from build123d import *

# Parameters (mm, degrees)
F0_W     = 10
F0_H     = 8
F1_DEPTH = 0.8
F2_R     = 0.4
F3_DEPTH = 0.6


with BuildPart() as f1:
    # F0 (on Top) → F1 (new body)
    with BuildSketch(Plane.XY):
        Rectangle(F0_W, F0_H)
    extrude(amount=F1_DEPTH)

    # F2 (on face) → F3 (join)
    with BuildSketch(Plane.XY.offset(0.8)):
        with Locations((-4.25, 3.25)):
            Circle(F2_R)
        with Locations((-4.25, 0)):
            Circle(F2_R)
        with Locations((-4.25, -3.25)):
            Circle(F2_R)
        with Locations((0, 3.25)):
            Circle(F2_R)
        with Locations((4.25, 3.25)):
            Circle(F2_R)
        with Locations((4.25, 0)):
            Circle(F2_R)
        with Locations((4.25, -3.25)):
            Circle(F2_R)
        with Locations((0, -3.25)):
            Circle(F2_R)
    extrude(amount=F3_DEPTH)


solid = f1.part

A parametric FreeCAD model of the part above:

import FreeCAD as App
import Part
import Sketcher

V = App.Vector


def add_polygon(sketch, points):
    """Adds a closed chain of lines whose ends are joined by coincident constraints."""
    first, n = sketch.GeometryCount, len(points)
    for a, b in zip(points, points[1:] + points[:1]):
        sketch.addGeometry(Part.LineSegment(App.Vector(*a, 0), App.Vector(*b, 0)), False)
    for i in range(n):
        sketch.addConstraint(Sketcher.Constraint("Coincident", first + i, 2, first + (i + 1) % n, 1))

doc = App.newDocument("Part")
body = doc.addObject("PartDesign::Body", "Body")

sketch1 = body.newObject("Sketcher::SketchObject", "Sketch")
sketch1.AttachmentSupport = (doc.getObject("XY_Plane"), [""])
sketch1.MapMode = "FlatFace"
add_polygon(sketch1, [(-5, 4), (-5, -4), (5, -4), (5, 4)])
sketch1.addConstraint([
    Sketcher.Constraint("Vertical", 0),
    Sketcher.Constraint("Horizontal", 1),
    Sketcher.Constraint("Vertical", 2),
    Sketcher.Constraint("Horizontal", 3),
    Sketcher.Constraint("Symmetric", 0, 2, 2, 2, -1, 1),
    Sketcher.Constraint("DistanceX", 1, 1, 1, 2, 10.0),
    Sketcher.Constraint("DistanceY", 0, 2, 0, 1, 8.0),
])
pad1 = body.newObject("PartDesign::Pad", "Pad")
pad1.Profile = sketch1
pad1.Length = 0.8

sketch2 = body.newObject("Sketcher::SketchObject", "Sketch001")
sketch2.AttachmentSupport = (doc.getObject("XY_Plane"), [""])
sketch2.MapMode = "FlatFace"
sketch2.AttachmentOffset = App.Placement(V(0, 0, 0.8), App.Rotation())
sketch2.addGeometry([
    Part.Circle(V(-4.25, 3.25, 0), V(0, 0, 1), 0.4),
    Part.Circle(V(-4.25, 0, 0), V(0, 0, 1), 0.4),
    Part.Circle(V(-4.25, -3.25, 0), V(0, 0, 1), 0.4),
    Part.Circle(V(0, 3.25, 0), V(0, 0, 1), 0.4),
    Part.Circle(V(4.25, 3.25, 0), V(0, 0, 1), 0.4),
    Part.Circle(V(4.25, 0, 0), V(0, 0, 1), 0.4),
    Part.Circle(V(4.25, -3.25, 0), V(0, 0, 1), 0.4),
    Part.Circle(V(0, -3.25, 0), V(0, 0, 1), 0.4),
], False)
sketch2.addConstraint([
    Sketcher.Constraint("Equal", 0, 1),
    Sketcher.Constraint("Equal", 1, 2),
    Sketcher.Constraint("Equal", 2, 3),
    Sketcher.Constraint("Equal", 3, 4),
    Sketcher.Constraint("Equal", 4, 5),
    Sketcher.Constraint("Equal", 5, 6),
    Sketcher.Constraint("Equal", 6, 7),
    Sketcher.Constraint("Symmetric", 2, 3, 4, 3, -1, 1),
    Sketcher.Constraint("Symmetric", 1, 3, 5, 3, -1, 1),
    Sketcher.Constraint("Symmetric", 0, 3, 6, 3, -1, 1),
    Sketcher.Constraint("Symmetric", 3, 3, 7, 3, -1, 1),
    Sketcher.Constraint("Symmetric", 0, 3, 4, 3, -2),
    Sketcher.Constraint("PointOnObject", 1, 3, -1),
    Sketcher.Constraint("PointOnObject", 3, 3, -2),
    Sketcher.Constraint("Horizontal", 0, 3, 3, 3),
    Sketcher.Constraint("Vertical", 0, 3, 1, 3),
    Sketcher.Constraint("Diameter", 0, 0.8),
    Sketcher.Constraint("DistanceY", 2, 3, 0, 3, 6.5),
    Sketcher.Constraint("DistanceX", 0, 3, 4, 3, 8.5),
])
pad2 = body.newObject("PartDesign::Pad", "Pad001")
pad2.Profile = sketch2
pad2.Length = 0.6

doc.recompute()
